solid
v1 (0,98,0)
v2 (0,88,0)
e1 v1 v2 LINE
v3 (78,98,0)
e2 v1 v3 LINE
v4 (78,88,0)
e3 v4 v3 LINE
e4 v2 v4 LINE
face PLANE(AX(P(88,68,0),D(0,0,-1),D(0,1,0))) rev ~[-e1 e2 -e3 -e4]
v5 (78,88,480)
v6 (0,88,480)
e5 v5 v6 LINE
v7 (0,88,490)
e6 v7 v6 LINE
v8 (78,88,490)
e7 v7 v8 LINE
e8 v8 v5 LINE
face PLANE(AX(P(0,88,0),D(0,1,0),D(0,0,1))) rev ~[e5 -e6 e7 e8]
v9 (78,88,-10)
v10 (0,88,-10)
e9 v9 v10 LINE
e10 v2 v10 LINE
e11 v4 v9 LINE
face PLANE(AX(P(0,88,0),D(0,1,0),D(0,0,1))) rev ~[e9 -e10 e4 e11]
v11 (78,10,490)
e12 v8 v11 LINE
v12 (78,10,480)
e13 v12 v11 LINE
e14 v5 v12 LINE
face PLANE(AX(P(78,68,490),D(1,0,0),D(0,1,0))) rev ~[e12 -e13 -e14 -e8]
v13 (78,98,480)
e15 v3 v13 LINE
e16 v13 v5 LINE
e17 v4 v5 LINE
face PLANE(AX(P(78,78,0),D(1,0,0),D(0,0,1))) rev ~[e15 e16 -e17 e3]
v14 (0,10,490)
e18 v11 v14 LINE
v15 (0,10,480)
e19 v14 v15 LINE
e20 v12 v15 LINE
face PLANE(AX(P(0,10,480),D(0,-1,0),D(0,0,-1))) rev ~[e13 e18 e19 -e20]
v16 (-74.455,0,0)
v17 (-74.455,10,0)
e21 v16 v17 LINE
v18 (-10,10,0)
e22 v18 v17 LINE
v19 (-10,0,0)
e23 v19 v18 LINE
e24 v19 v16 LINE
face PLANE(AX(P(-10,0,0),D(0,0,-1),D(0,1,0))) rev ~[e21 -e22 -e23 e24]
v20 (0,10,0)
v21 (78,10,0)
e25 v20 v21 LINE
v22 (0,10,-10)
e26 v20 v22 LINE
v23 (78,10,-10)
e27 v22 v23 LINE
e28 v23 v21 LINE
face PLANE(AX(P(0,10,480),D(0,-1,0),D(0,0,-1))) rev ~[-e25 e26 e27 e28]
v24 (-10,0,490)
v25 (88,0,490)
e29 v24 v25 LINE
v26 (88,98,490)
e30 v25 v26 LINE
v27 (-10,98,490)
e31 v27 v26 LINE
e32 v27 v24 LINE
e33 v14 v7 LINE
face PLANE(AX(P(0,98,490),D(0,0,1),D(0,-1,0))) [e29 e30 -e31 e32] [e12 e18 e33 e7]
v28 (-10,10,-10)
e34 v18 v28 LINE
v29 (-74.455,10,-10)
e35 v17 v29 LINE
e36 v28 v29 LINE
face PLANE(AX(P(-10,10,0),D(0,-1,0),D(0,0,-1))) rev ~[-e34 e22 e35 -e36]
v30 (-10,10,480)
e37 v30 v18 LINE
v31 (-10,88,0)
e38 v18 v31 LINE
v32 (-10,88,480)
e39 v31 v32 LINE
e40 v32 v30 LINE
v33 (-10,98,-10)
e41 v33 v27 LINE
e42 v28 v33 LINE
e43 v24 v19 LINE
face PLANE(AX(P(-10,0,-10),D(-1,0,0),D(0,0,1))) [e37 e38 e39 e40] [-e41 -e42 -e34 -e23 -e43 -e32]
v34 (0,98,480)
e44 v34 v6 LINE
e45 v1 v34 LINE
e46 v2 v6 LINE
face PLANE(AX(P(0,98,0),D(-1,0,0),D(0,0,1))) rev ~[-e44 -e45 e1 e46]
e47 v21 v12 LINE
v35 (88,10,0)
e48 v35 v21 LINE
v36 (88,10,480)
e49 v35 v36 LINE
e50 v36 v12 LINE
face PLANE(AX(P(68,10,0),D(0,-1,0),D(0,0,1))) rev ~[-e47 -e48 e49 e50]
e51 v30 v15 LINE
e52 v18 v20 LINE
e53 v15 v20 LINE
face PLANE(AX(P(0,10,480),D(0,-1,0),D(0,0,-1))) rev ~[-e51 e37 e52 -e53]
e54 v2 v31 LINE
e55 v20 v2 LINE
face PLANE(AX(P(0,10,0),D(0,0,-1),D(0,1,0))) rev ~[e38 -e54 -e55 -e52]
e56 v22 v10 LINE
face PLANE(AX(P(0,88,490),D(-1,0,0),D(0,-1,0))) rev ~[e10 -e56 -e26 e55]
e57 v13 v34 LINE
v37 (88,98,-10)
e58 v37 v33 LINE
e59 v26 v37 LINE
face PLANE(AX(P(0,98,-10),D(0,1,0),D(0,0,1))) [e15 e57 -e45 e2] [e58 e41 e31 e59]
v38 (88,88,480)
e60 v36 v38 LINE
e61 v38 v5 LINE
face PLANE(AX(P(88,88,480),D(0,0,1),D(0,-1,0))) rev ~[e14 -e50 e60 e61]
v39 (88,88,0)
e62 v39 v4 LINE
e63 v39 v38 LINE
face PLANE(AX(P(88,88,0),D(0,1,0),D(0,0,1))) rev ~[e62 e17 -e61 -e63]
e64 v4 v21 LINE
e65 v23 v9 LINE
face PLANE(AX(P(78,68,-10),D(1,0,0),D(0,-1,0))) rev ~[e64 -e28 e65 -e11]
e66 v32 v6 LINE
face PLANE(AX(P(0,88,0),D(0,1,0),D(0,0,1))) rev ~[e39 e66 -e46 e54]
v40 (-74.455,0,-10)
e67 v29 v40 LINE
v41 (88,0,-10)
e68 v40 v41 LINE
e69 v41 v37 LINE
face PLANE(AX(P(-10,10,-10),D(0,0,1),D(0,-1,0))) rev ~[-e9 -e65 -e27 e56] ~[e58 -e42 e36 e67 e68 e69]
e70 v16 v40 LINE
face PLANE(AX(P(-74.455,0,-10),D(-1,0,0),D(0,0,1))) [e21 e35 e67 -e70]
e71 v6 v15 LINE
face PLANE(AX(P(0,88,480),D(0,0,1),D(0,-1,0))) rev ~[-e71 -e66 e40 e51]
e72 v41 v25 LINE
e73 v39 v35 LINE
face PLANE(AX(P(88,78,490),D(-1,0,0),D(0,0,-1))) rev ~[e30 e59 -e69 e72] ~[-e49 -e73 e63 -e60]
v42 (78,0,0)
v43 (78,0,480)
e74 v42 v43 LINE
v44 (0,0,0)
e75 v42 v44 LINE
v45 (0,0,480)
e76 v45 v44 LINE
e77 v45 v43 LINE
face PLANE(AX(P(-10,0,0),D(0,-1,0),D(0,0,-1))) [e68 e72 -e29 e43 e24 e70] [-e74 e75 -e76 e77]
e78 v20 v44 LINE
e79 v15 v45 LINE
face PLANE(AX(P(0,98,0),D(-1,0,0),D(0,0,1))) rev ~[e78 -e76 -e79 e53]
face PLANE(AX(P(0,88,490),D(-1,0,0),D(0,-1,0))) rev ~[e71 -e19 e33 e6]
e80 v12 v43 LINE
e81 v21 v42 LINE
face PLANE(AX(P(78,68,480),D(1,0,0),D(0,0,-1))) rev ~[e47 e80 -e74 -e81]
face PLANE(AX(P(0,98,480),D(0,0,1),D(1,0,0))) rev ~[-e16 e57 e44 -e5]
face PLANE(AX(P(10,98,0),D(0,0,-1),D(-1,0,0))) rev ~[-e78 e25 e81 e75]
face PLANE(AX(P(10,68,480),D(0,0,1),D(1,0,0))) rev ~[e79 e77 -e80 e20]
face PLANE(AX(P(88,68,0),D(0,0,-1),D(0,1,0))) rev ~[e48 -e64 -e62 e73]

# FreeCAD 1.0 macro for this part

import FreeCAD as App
import Part
import Sketcher
Q = App.Units.Quantity

doc = App.newDocument("Part")
body = doc.addObject("PartDesign::Body", "Body")

sketch1 = body.newObject("Sketcher::SketchObject", "Sketch")
sketch1.AttachmentSupport = (doc.getObject("XY_Plane"), [""])
sketch1.MapMode = "FlatFace"
sketch1.addGeometry([
    Part.LineSegment(App.Vector(0, 68, 0), App.Vector(0, 0, 0)),
    Part.LineSegment(App.Vector(0, 0, 0), App.Vector(68, 0, 0)),
    Part.LineSegment(App.Vector(68, 0, 0), App.Vector(68, 68, 0)),
    Part.LineSegment(App.Vector(68, 68, 0), App.Vector(0, 68, 0)),
], False)
sketch1.addConstraint([
    Sketcher.Constraint("Coincident", 0, 2, 1, 1),
    Sketcher.Constraint("Coincident", 1, 2, 2, 1),
    Sketcher.Constraint("Coincident", 2, 2, 3, 1),
    Sketcher.Constraint("Coincident", 3, 2, 0, 1),
    Sketcher.Constraint("Vertical", 0),
    Sketcher.Constraint("Horizontal", 1),
    Sketcher.Constraint("Vertical", 2),
    Sketcher.Constraint("Horizontal", 3),
    Sketcher.Constraint("Coincident", 0, 2, -1, 1),
    Sketcher.Constraint("Equal", 3, 0),
    Sketcher.Constraint("DistanceX", 1, 1, 1, 2, Q("68 mm")),
])
pad1 = body.newObject("PartDesign::Pad", "Pad")
pad1.Profile = sketch1
pad1.Length = 480

sketch2 = body.newObject("Sketcher::SketchObject", "Sketch001")
sketch2.AttachmentSupport = (doc.getObject("XY_Plane"), [""])
sketch2.MapMode = "FlatFace"
sketch2.AttachmentOffset = App.Placement(App.Vector(0, 0, 480), App.Rotation())
sketch2.addGeometry([
    Part.LineSegment(App.Vector(58, 58, 0), App.Vector(10, 58, 0)),
    Part.LineSegment(App.Vector(10, 58, 0), App.Vector(10, 10, 0)),
    Part.LineSegment(App.Vector(10, 10, 0), App.Vector(58, 10, 0)),
    Part.LineSegment(App.Vector(58, 10, 0), App.Vector(58, 58, 0)),
], False)
sketch2.addConstraint([
    Sketcher.Constraint("Coincident", 0, 2, 1, 1),
    Sketcher.Constraint("Coincident", 1, 2, 2, 1),
    Sketcher.Constraint("Coincident", 2, 2, 3, 1),
    Sketcher.Constraint("Coincident", 3, 2, 0, 1),
    Sketcher.Constraint("Horizontal", 0),
    Sketcher.Constraint("Vertical", 1),
    Sketcher.Constraint("Horizontal", 2),
    Sketcher.Constraint("Vertical", 3),
    Sketcher.Constraint("Equal", 2, 1),
    Sketcher.Constraint("DistanceX", -1, 1, 0, 2, Q("10 mm")),
    Sketcher.Constraint("DistanceY", -1, 1, 1, 2, Q("10 mm")),
    Sketcher.Constraint("DistanceX", 0, 2, 0, 1, Q("48 mm")),
])
pocket1 = body.newObject("PartDesign::Pocket", "Pocket")
pocket1.Profile = sketch2
pocket1.Length = 900

sketch3 = body.newObject("Sketcher::SketchObject", "Sketch002")
sketch3.AttachmentSupport = (doc.getObject("YZ_Plane"), [""])
sketch3.MapMode = "FlatFace"
sketch3.AttachmentOffset = App.Placement(App.Vector(0, 0, 68), App.Rotation())
sketch3.addGeometry([
    Part.LineSegment(App.Vector(58, 10, 0), App.Vector(58, 470, 0)),
    Part.LineSegment(App.Vector(58, 470, 0), App.Vector(10, 470, 0)),
    Part.LineSegment(App.Vector(10, 470, 0), App.Vector(10, 10, 0)),
    Part.LineSegment(App.Vector(10, 10, 0), App.Vector(58, 10, 0)),
], False)
sketch3.addConstraint([
    Sketcher.Constraint("Coincident", 0, 2, 1, 1),
    Sketcher.Constraint("Coincident", 1, 2, 2, 1),
    Sketcher.Constraint("Coincident", 2, 2, 3, 1),
    Sketcher.Constraint("Coincident", 3, 2, 0, 1),
    Sketcher.Constraint("Vertical", 0),
    Sketcher.Constraint("Horizontal", 1),
    Sketcher.Constraint("Vertical", 2),
    Sketcher.Constraint("Horizontal", 3),
    Sketcher.Constraint("DistanceX", -1, 1, 1, 2, Q("10 mm")),
    Sketcher.Constraint("DistanceY", -1, 1, 2, 2, Q("10 mm")),
    Sketcher.Constraint("DistanceX", 1, 2, 1, 1, Q("48 mm")),
    Sketcher.Constraint("DistanceY", 0, 1, 0, 2, Q("460 mm")),
])
pocket2 = body.newObject("PartDesign::Pocket", "Pocket001")
pocket2.Profile = sketch3
pocket2.Length = 900

sketch4 = body.newObject("Sketcher::SketchObject", "Sketch003")
sketch4.AttachmentSupport = (doc.getObject("XZ_Plane"), [""])
sketch4.MapMode = "FlatFace"
sketch4.AttachmentOffset = App.Placement(App.Vector(0, 0, -68), App.Rotation())
sketch4.addGeometry([
    Part.LineSegment(App.Vector(58, 470, 0), App.Vector(58, 10, 0)),
    Part.LineSegment(App.Vector(58, 10, 0), App.Vector(10, 10, 0)),
    Part.LineSegment(App.Vector(10, 10, 0), App.Vector(10, 470, 0)),
    Part.LineSegment(App.Vector(10, 470, 0), App.Vector(58, 470, 0)),
], False)
sketch4.addConstraint([
    Sketcher.Constraint("Coincident", 0, 2, 1, 1),
    Sketcher.Constraint("Coincident", 1, 2, 2, 1),
    Sketcher.Constraint("Coincident", 2, 2, 3, 1),
    Sketcher.Constraint("Coincident", 3, 2, 0, 1),
    Sketcher.Constraint("Vertical", 0),
    Sketcher.Constraint("Horizontal", 1),
    Sketcher.Constraint("Vertical", 2),
    Sketcher.Constraint("Horizontal", 3),
    Sketcher.Constraint("DistanceX", 1, 2, 1, 1, Q("48 mm")),
    Sketcher.Constraint("DistanceY", 0, 2, 0, 1, Q("460 mm")),
    Sketcher.Constraint("DistanceX", -1, 1, 0, 2, Q("58 mm")),
    Sketcher.Constraint("DistanceY", -1, 1, 0, 2, Q("10 mm")),
])
pocket3 = body.newObject("PartDesign::Pocket", "Pocket002")
pocket3.Profile = sketch4
pocket3.Length = 900
pocket3.Reversed = True

sketch5 = body.newObject("Sketcher::SketchObject", "Sketch004")
sketch5.AttachmentSupport = (doc.getObject("XY_Plane"), [""])
sketch5.MapMode = "FlatFace"
sketch5.AttachmentOffset = App.Placement(App.Vector(0, 0, 480), App.Rotation())
sketch5.addGeometry([
    Part.LineSegment(App.Vector(68, 0, 0), App.Vector(68, 68, 0)),
    Part.LineSegment(App.Vector(68, 68, 0), App.Vector(0, 68, 0)),
    Part.LineSegment(App.Vector(0, 68, 0), App.Vector(0, 58, 0)),
    Part.LineSegment(App.Vector(0, 58, 0), App.Vector(0, 0, 0)),
    Part.LineSegment(App.Vector(0, 0, 0), App.Vector(68, 0, 0)),
    Part.LineSegment(App.Vector(10, 10, 0), App.Vector(10, 58, 0)),
    Part.LineSegment(App.Vector(10, 58, 0), App.Vector(58, 58, 0)),
    Part.LineSegment(App.Vector(58, 58, 0), App.Vector(58, 10, 0)),
    Part.LineSegment(App.Vector(58, 10, 0), App.Vector(10, 10, 0)),
], False)
sketch5.addConstraint([
    Sketcher.Constraint("Coincident", 0, 2, 1, 1),
    Sketcher.Constraint("Coincident", 1, 2, 2, 1),
    Sketcher.Constraint("Coincident", 2, 2, 3, 1),
    Sketcher.Constraint("Coincident", 3, 2, 4, 1),
    Sketcher.Constraint("Coincident", 4, 2, 0, 1),
    Sketcher.Constraint("Coincident", 5, 2, 6, 1),
    Sketcher.Constraint("Coincident", 6, 2, 7, 1),
    Sketcher.Constraint("Coincident", 7, 2, 8, 1),
    Sketcher.Constraint("Coincident", 8, 2, 5, 1),
    Sketcher.Constraint("Vertical", 0),
    Sketcher.Constraint("Horizontal", 1),
    Sketcher.Constraint("Vertical", 2),
    Sketcher.Constraint("Vertical", 3),
    Sketcher.Constraint("Horizontal", 4),
    Sketcher.Constraint("Vertical", 5),
    Sketcher.Constraint("Horizontal", 6),
    Sketcher.Constraint("Vertical", 7),
    Sketcher.Constraint("Horizontal", 8),
    Sketcher.Constraint("Coincident", 3, 2, -1, 1),
    Sketcher.Constraint("Horizontal", 2, 2, 5, 2),
    Sketcher.Constraint("Equal", 4, 0),
    Sketcher.Constraint("Equal", 8, 5),
    Sketcher.Constraint("DistanceX", 1, 2, 1, 1, Q("68 mm")),
    Sketcher.Constraint("DistanceX", 6, 1, 6, 2, Q("48 mm")),
    Sketcher.Constraint("DistanceY", 2, 2, 2, 1, Q("10 mm")),
    Sketcher.Constraint("DistanceX", -1, 1, 5, 2, Q("10 mm")),
])
pad2 = body.newObject("PartDesign::Pad", "Pad001")
pad2.Profile = sketch5
pad2.Length = 10

sketch6 = body.newObject("Sketcher::SketchObject", "Sketch005")
sketch6.AttachmentSupport = (doc.getObject("XZ_Plane"), [""])
sketch6.MapMode = "FlatFace"
sketch6.AttachmentOffset = App.Placement(App.Vector(0, 0, -68), App.Rotation())
sketch6.addGeometry([
    Part.LineSegment(App.Vector(10, 480, 0), App.Vector(58, 480, 0)),
    Part.LineSegment(App.Vector(58, 480, 0), App.Vector(58, 470, 0)),
    Part.LineSegment(App.Vector(58, 470, 0), App.Vector(10, 470, 0)),
    Part.LineSegment(App.Vector(10, 470, 0), App.Vector(10, 480, 0)),
], False)
sketch6.addConstraint([
    Sketcher.Constraint("Coincident", 0, 2, 1, 1),
    Sketcher.Constraint("Coincident", 1, 2, 2, 1),
    Sketcher.Constraint("Coincident", 2, 2, 3, 1),
    Sketcher.Constraint("Coincident", 3, 2, 0, 1),
    Sketcher.Constraint("Horizontal", 0),
    Sketcher.Constraint("Vertical", 1),
    Sketcher.Constraint("Horizontal", 2),
    Sketcher.Constraint("Vertical", 3),
    Sketcher.Constraint("DistanceX", 0, 1, 0, 2, Q("48 mm")),
    Sketcher.Constraint("DistanceY", 1, 2, 1, 1, Q("10 mm")),
    Sketcher.Constraint("DistanceX", -1, 1, 0, 2, Q("58 mm")),
    Sketcher.Constraint("DistanceY", -1, 1, 0, 2, Q("480 mm")),
])
pocket4 = body.newObject("PartDesign::Pocket", "Pocket003")
pocket4.Profile = sketch6
pocket4.Length = 900
pocket4.Reversed = True

sketch7 = body.newObject("Sketcher::SketchObject", "Sketch006")
sketch7.AttachmentSupport = (doc.getObject("YZ_Plane"), [""])
sketch7.MapMode = "FlatFace"
sketch7.AttachmentOffset = App.Placement(App.Vector(0, 0, 68), App.Rotation())
sketch7.addGeometry([
    Part.LineSegment(App.Vector(10, 480, 0), App.Vector(10, 470, 0)),
    Part.LineSegment(App.Vector(10, 470, 0), App.Vector(58, 470, 0)),
    Part.LineSegment(App.Vector(58, 470, 0), App.Vector(58, 480, 0)),
    Part.LineSegment(App.Vector(58, 480, 0), App.Vector(10, 480, 0)),
], False)
sketch7.addConstraint([
    Sketcher.Constraint("Coincident", 0, 2, 1, 1),
    Sketcher.Constraint("Coincident", 1, 2, 2, 1),
    Sketcher.Constraint("Coincident", 2, 2, 3, 1),
    Sketcher.Constraint("Coincident", 3, 2, 0, 1),
    Sketcher.Constraint("Vertical", 0),
    Sketcher.Constraint("Horizontal", 1),
    Sketcher.Constraint("Vertical", 2),
    Sketcher.Constraint("Horizontal", 3),
    Sketcher.Constraint("DistanceX", 1, 1, 1, 2, Q("48 mm")),
    Sketcher.Constraint("DistanceY", 0, 2, 0, 1, Q("10 mm")),
    Sketcher.Constraint("DistanceX", -1, 1, 0, 2, Q("10 mm")),
    Sketcher.Constraint("DistanceY", -1, 1, 0, 2, Q("470 mm")),
])
pocket5 = body.newObject("PartDesign::Pocket", "Pocket004")
pocket5.Profile = sketch7
pocket5.Length = 900

sketch8 = body.newObject("Sketcher::SketchObject", "Sketch007")
sketch8.AttachmentSupport = (doc.getObject("XY_Plane"), [""])
sketch8.MapMode = "FlatFace"
sketch8.addGeometry([
    Part.LineSegment(App.Vector(68, 68, 0), App.Vector(68, 0, 0)),
    Part.LineSegment(App.Vector(68, 0, 0), App.Vector(0, 0, 0)),
    Part.LineSegment(App.Vector(0, 0, 0), App.Vector(0, 68, 0)),
    Part.LineSegment(App.Vector(0, 68, 0), App.Vector(68, 68, 0)),
    Part.LineSegment(App.Vector(58, 10, 0), App.Vector(58, 58, 0)),
    Part.LineSegment(App.Vector(58, 58, 0), App.Vector(10, 58, 0)),
    Part.LineSegment(App.Vector(10, 58, 0), App.Vector(10, 10, 0)),
    Part.LineSegment(App.Vector(10, 10, 0), App.Vector(58, 10, 0)),
], False)
sketch8.addConstraint([
    Sketcher.Constraint("Coincident", 0, 2, 1, 1),
    Sketcher.Constraint("Coincident", 1, 2, 2, 1),
    Sketcher.Constraint("Coincident", 2, 2, 3, 1),
    Sketcher.Constraint("Coincident", 3, 2, 0, 1),
    Sketcher.Constraint("Coincident", 4, 2, 5, 1),
    Sketcher.Constraint("Coincident", 5, 2, 6, 1),
    Sketcher.Constraint("Coincident", 6, 2, 7, 1),
    Sketcher.Constraint("Coincident", 7, 2, 4, 1),
    Sketcher.Constraint("Vertical", 0),
    Sketcher.Constraint("Horizontal", 1),
    Sketcher.Constraint("Vertical", 2),
    Sketcher.Constraint("Horizontal", 3),
    Sketcher.Constraint("Vertical", 4),
    Sketcher.Constraint("Horizontal", 5),
    Sketcher.Constraint("Vertical", 6),
    Sketcher.Constraint("Horizontal", 7),
    Sketcher.Constraint("Coincident", 1, 2, -1, 1),
    Sketcher.Constraint("Equal", 3, 0),
    Sketcher.Constraint("Equal", 7, 4),
    Sketcher.Constraint("DistanceX", 1, 2, 1, 1, Q("68 mm")),
    Sketcher.Constraint("DistanceX", 5, 2, 5, 1, Q("48 mm")),
    Sketcher.Constraint("DistanceX", -1, 1, 4, 2, Q("58 mm")),
    Sketcher.Constraint("DistanceY", -1, 1, 4, 2, Q("58 mm")),
])
pad3 = body.newObject("PartDesign::Pad", "Pad002")
pad3.Profile = sketch8
pad3.Length = 10
pad3.Reversed = True

sketch9 = body.newObject("Sketcher::SketchObject", "Sketch008")
sketch9.AttachmentSupport = (doc.getObject("XZ_Plane"), [""])
sketch9.MapMode = "FlatFace"
sketch9.AttachmentOffset = App.Placement(App.Vector(0, 0, -68), App.Rotation())
sketch9.addGeometry([
    Part.LineSegment(App.Vector(10, 0, 0), App.Vector(10, 10, 0)),
    Part.LineSegment(App.Vector(10, 10, 0), App.Vector(58, 10, 0)),
    Part.LineSegment(App.Vector(58, 10, 0), App.Vector(58, 0, 0)),
    Part.LineSegment(App.Vector(58, 0, 0), App.Vector(10, 0, 0)),
], False)
sketch9.addConstraint([
    Sketcher.Constraint("Coincident", 0, 2, 1, 1),
    Sketcher.Constraint("Coincident", 1, 2, 2, 1),
    Sketcher.Constraint("Coincident", 2, 2, 3, 1),
    Sketcher.Constraint("Coincident", 3, 2, 0, 1),
    Sketcher.Constraint("Vertical", 0),
    Sketcher.Constraint("Horizontal", 1),
    Sketcher.Constraint("Vertical", 2),
    Sketcher.Constraint("Horizontal", 3),
    Sketcher.Constraint("PointOnObject", 2, 2, -1),
    Sketcher.Constraint("DistanceX", 1, 1, 1, 2, Q("48 mm")),
    Sketcher.Constraint("DistanceY", 0, 1, 0, 2, Q("10 mm")),
    Sketcher.Constraint("DistanceX", -1, 1, 0, 2, Q("10 mm")),
])
pocket6 = body.newObject("PartDesign::Pocket", "Pocket005")
pocket6.Profile = sketch9
pocket6.Length = 900
pocket6.Reversed = True

sketch10 = body.newObject("Sketcher::SketchObject", "Sketch009")
sketch10.AttachmentSupport = (doc.getObject("YZ_Plane"), [""])
sketch10.MapMode = "FlatFace"
sketch10.AttachmentOffset = App.Placement(App.Vector(0, 0, 68), App.Rotation())
sketch10.addGeometry([
    Part.LineSegment(App.Vector(58, 0, 0), App.Vector(58, 10, 0)),
    Part.LineSegment(App.Vector(58, 10, 0), App.Vector(10, 10, 0)),
    Part.LineSegment(App.Vector(10, 10, 0), App.Vector(10, 0, 0)),
    Part.LineSegment(App.Vector(10, 0, 0), App.Vector(58, 0, 0)),
], False)
sketch10.addConstraint([
    Sketcher.Constraint("Coincident", 0, 2, 1, 1),
    Sketcher.Constraint("Coincident", 1, 2, 2, 1),
    Sketcher.Constraint("Coincident", 2, 2, 3, 1),
    Sketcher.Constraint("Coincident", 3, 2, 0, 1),
    Sketcher.Constraint("Vertical", 0),
    Sketcher.Constraint("Horizontal", 1),
    Sketcher.Constraint("Vertical", 2),
    Sketcher.Constraint("Horizontal", 3),
    Sketcher.Constraint("PointOnObject", 2, 2, -1),
    Sketcher.Constraint("DistanceX", 1, 2, 1, 1, Q("48 mm")),
    Sketcher.Constraint("DistanceY", 0, 1, 0, 2, Q("10 mm")),
    Sketcher.Constraint("DistanceX", -1, 1, 0, 2, Q("58 mm")),
])
pocket7 = body.newObject("PartDesign::Pocket", "Pocket006")
pocket7.Profile = sketch10
pocket7.Length = 900

sketch11 = body.newObject("Sketcher::SketchObject", "Sketch010")
sketch11.AttachmentSupport = (doc.getObject("YZ_Plane"), [""])
sketch11.MapMode = "FlatFace"
sketch11.AttachmentOffset = App.Placement(App.Vector(0, 0, 68), App.Rotation())
sketch11.addGeometry([
    Part.LineSegment(App.Vector(68, -10, 0), App.Vector(68, 490, 0)),
    Part.LineSegment(App.Vector(68, 490, 0), App.Vector(0, 490, 0)),
    Part.LineSegment(App.Vector(0, 490, 0), App.Vector(0, -10, 0)),
    Part.LineSegment(App.Vector(0, -10, 0), App.Vector(68, -10, 0)),
    Part.LineSegment(App.Vector(58, 480, 0), App.Vector(58, 0, 0)),
    Part.LineSegment(App.Vector(58, 0, 0), App.Vector(10, 0, 0)),
    Part.LineSegment(App.Vector(10, 0, 0), App.Vector(10, 480, 0)),
    Part.LineSegment(App.Vector(10, 480, 0), App.Vector(58, 480, 0)),
], False)
sketch11.addConstraint([
    Sketcher.Constraint("Coincident", 0, 2, 1, 1),
    Sketcher.Constraint("Coincident", 1, 2, 2, 1),
    Sketcher.Constraint("Coincident", 2, 2, 3, 1),
    Sketcher.Constraint("Coincident", 3, 2, 0, 1),
    Sketcher.Constraint("Coincident", 4, 2, 5, 1),
    Sketcher.Constraint("Coincident", 5, 2, 6, 1),
    Sketcher.Constraint("Coincident", 6, 2, 7, 1),
    Sketcher.Constraint("Coincident", 7, 2, 4, 1),
    Sketcher.Constraint("Vertical", 0),
    Sketcher.Constraint("Horizontal", 1),
    Sketcher.Constraint("Vertical", 2),
    Sketcher.Constraint("Horizontal", 3),
    Sketcher.Constraint("Vertical", 4),
    Sketcher.Constraint("Horizontal", 5),
    Sketcher.Constraint("Vertical", 6),
    Sketcher.Constraint("Horizontal", 7),
    Sketcher.Constraint("PointOnObject", 1, 2, -2),
    Sketcher.Constraint("PointOnObject", 4, 2, -1),
    Sketcher.Constraint("DistanceX", 1, 2, 1, 1, Q("68 mm")),
    Sketcher.Constraint("DistanceX", 5, 2, 5, 1, Q("48 mm")),
    Sketcher.Constraint("DistanceY", 0, 1, 0, 2, Q("500 mm")),
    Sketcher.Constraint("DistanceY", 4, 2, 4, 1, Q("480 mm")),
    Sketcher.Constraint("DistanceY", -1, 1, 0, 2, Q("490 mm")),
    Sketcher.Constraint("DistanceX", -1, 1, 4, 2, Q("58 mm")),
])
pad4 = body.newObject("PartDesign::Pad", "Pad003")
pad4.Profile = sketch11
pad4.Length = 20

sketch12 = body.newObject("Sketcher::SketchObject", "Sketch011")
sketch12.AttachmentSupport = (doc.getObject("XZ_Plane"), [""])
sketch12.MapMode = "FlatFace"
sketch12.AttachmentOffset = App.Placement(App.Vector(0, 0, -68), App.Rotation())
sketch12.addGeometry([
    Part.LineSegment(App.Vector(58, 0, 0), App.Vector(58, 480, 0)),
    Part.LineSegment(App.Vector(58, 480, 0), App.Vector(78, 480, 0)),
    Part.LineSegment(App.Vector(78, 480, 0), App.Vector(78, 0, 0)),
    Part.LineSegment(App.Vector(78, 0, 0), App.Vector(58, 0, 0)),
], False)
sketch12.addConstraint([
    Sketcher.Constraint("Coincident", 0, 2, 1, 1),
    Sketcher.Constraint("Coincident", 1, 2, 2, 1),
    Sketcher.Constraint("Coincident", 2, 2, 3, 1),
    Sketcher.Constraint("Coincident", 3, 2, 0, 1),
    Sketcher.Constraint("Vertical", 0),
    Sketcher.Constraint("Horizontal", 1),
    Sketcher.Constraint("Vertical", 2),
    Sketcher.Constraint("Horizontal", 3),
    Sketcher.Constraint("PointOnObject", 2, 2, -1),
    Sketcher.Constraint("DistanceX", 1, 1, 1, 2, Q("20 mm")),
    Sketcher.Constraint("DistanceY", 0, 1, 0, 2, Q("480 mm")),
    Sketcher.Constraint("DistanceX", -1, 1, 0, 2, Q("58 mm")),
])
pocket8 = body.newObject("PartDesign::Pocket", "Pocket007")
pocket8.Profile = sketch12
pocket8.Length = 900
pocket8.Reversed = True

sketch13 = body.newObject("Sketcher::SketchObject", "Sketch012")
sketch13.AttachmentSupport = (doc.getObject("XY_Plane"), [""])
sketch13.MapMode = "FlatFace"
sketch13.AttachmentOffset = App.Placement(App.Vector(0, 0, -10), App.Rotation())
sketch13.addGeometry([
    Part.LineSegment(App.Vector(58, 10, 0), App.Vector(58, 58, 0)),
    Part.LineSegment(App.Vector(58, 58, 0), App.Vector(78, 58, 0)),
    Part.LineSegment(App.Vector(78, 58, 0), App.Vector(78, 10, 0)),
    Part.LineSegment(App.Vector(78, 10, 0), App.Vector(58, 10, 0)),
], False)
sketch13.addConstraint([
    Sketcher.Constraint("Coincident", 0, 2, 1, 1),
    Sketcher.Constraint("Coincident", 1, 2, 2, 1),
    Sketcher.Constraint("Coincident", 2, 2, 3, 1),
    Sketcher.Constraint("Coincident", 3, 2, 0, 1),
    Sketcher.Constraint("Vertical", 0),
    Sketcher.Constraint("Horizontal", 1),
    Sketcher.Constraint("Vertical", 2),
    Sketcher.Constraint("Horizontal", 3),
    Sketcher.Constraint("DistanceX", 1, 1, 1, 2, Q("20 mm")),
    Sketcher.Constraint("DistanceY", 0, 1, 0, 2, Q("48 mm")),
    Sketcher.Constraint("DistanceX", -1, 1, 0, 2, Q("58 mm")),
    Sketcher.Constraint("DistanceY", -1, 1, 0, 2, Q("58 mm")),
])
pocket9 = body.newObject("PartDesign::Pocket", "Pocket008")
pocket9.Profile = sketch13
pocket9.Length = 900
pocket9.Reversed = True

sketch14 = body.newObject("Sketcher::SketchObject", "Sketch013")
sketch14.AttachmentSupport = (doc.getObject("XZ_Plane"), [""])
sketch14.MapMode = "FlatFace"
sketch14.AttachmentOffset = App.Placement(App.Vector(0, 0, -68), App.Rotation())
sketch14.addGeometry([
    Part.LineSegment(App.Vector(0, -10, 0), App.Vector(0, 490, 0)),
    Part.LineSegment(App.Vector(0, 490, 0), App.Vector(88, 490, 0)),
    Part.LineSegment(App.Vector(88, 490, 0), App.Vector(88, -10, 0)),
    Part.LineSegment(App.Vector(88, -10, 0), App.Vector(0, -10, 0)),
    Part.LineSegment(App.Vector(78, 480, 0), App.Vector(10, 480, 0)),
    Part.LineSegment(App.Vector(10, 480, 0), App.Vector(10, 0, 0)),
    Part.LineSegment(App.Vector(10, 0, 0), App.Vector(78, 0, 0)),
    Part.LineSegment(App.Vector(78, 0, 0), App.Vector(78, 480, 0)),
], False)
sketch14.addConstraint([
    Sketcher.Constraint("Coincident", 0, 2, 1, 1),
    Sketcher.Constraint("Coincident", 1, 2, 2, 1),
    Sketcher.Constraint("Coincident", 2, 2, 3, 1),
    Sketcher.Constraint("Coincident", 3, 2, 0, 1),
    Sketcher.Constraint("Coincident", 4, 2, 5, 1),
    Sketcher.Constraint("Coincident", 5, 2, 6, 1),
    Sketcher.Constraint("Coincident", 6, 2, 7, 1),
    Sketcher.Constraint("Coincident", 7, 2, 4, 1),
    Sketcher.Constraint("Vertical", 0),
    Sketcher.Constraint("Horizontal", 1),
    Sketcher.Constraint("Vertical", 2),
    Sketcher.Constraint("Horizontal", 3),
    Sketcher.Constraint("Horizontal", 4),
    Sketcher.Constraint("Vertical", 5),
    Sketcher.Constraint("Horizontal", 6),
    Sketcher.Constraint("Vertical", 7),
    Sketcher.Constraint("PointOnObject", 0, 2, -2),
    Sketcher.Constraint("PointOnObject", 5, 2, -1),
    Sketcher.Constraint("DistanceX", 1, 1, 1, 2, Q("88 mm")),
    Sketcher.Constraint("DistanceX", 4, 2, 4, 1, Q("68 mm")),
    Sketcher.Constraint("DistanceY", 0, 1, 0, 2, Q("500 mm")),
    Sketcher.Constraint("DistanceY", 5, 2, 5, 1, Q("480 mm")),
    Sketcher.Constraint("DistanceY", -1, 1, 0, 2, Q("490 mm")),
    Sketcher.Constraint("DistanceX", -1, 1, 4, 2, Q("10 mm")),
])
pad5 = body.newObject("PartDesign::Pad", "Pad004")
pad5.Profile = sketch14
pad5.Length = 10
pad5.Reversed = True

sketch15 = body.newObject("Sketcher::SketchObject", "Sketch014")
sketch15.AttachmentSupport = (doc.getObject("YZ_Plane"), [""])
sketch15.MapMode = "FlatFace"
sketch15.AttachmentOffset = App.Placement(App.Vector(0, 0, 88), App.Rotation())
sketch15.addGeometry([
    Part.LineSegment(App.Vector(68, 480, 0), App.Vector(58, 480, 0)),
    Part.LineSegment(App.Vector(58, 480, 0), App.Vector(58, 0, 0)),
    Part.LineSegment(App.Vector(58, 0, 0), App.Vector(68, 0, 0)),
    Part.LineSegment(App.Vector(68, 0, 0), App.Vector(68, 480, 0)),
], False)
sketch15.addConstraint([
    Sketcher.Constraint("Coincident", 0, 2, 1, 1),
    Sketcher.Constraint("Coincident", 1, 2, 2, 1),
    Sketcher.Constraint("Coincident", 2, 2, 3, 1),
    Sketcher.Constraint("Coincident", 3, 2, 0, 1),
    Sketcher.Constraint("Horizontal", 0),
    Sketcher.Constraint("Vertical", 1),
    Sketcher.Constraint("Horizontal", 2),
    Sketcher.Constraint("Vertical", 3),
    Sketcher.Constraint("PointOnObject", 1, 2, -1),
    Sketcher.Constraint("DistanceX", 0, 2, 0, 1, Q("10 mm")),
    Sketcher.Constraint("DistanceY", 1, 2, 1, 1, Q("480 mm")),
    Sketcher.Constraint("DistanceX", -1, 1, 0, 2, Q("58 mm")),
])
pocket10 = body.newObject("PartDesign::Pocket", "Pocket009")
pocket10.Profile = sketch15
pocket10.Length = 900

sketch16 = body.newObject("Sketcher::SketchObject", "Sketch015")
sketch16.AttachmentSupport = (doc.getObject("XY_Plane"), [""])
sketch16.MapMode = "FlatFace"
sketch16.AttachmentOffset = App.Placement(App.Vector(0, 0, -10), App.Rotation())
sketch16.addGeometry([
    Part.LineSegment(App.Vector(78, 68, 0), App.Vector(78, 58, 0)),
    Part.LineSegment(App.Vector(78, 58, 0), App.Vector(10, 58, 0)),
    Part.LineSegment(App.Vector(10, 58, 0), App.Vector(10, 68, 0)),
    Part.LineSegment(App.Vector(10, 68, 0), App.Vector(78, 68, 0)),
], False)
sketch16.addConstraint([
    Sketcher.Constraint("Coincident", 0, 2, 1, 1),
    Sketcher.Constraint("Coincident", 1, 2, 2, 1),
    Sketcher.Constraint("Coincident", 2, 2, 3, 1),
    Sketcher.Constraint("Coincident", 3, 2, 0, 1),
    Sketcher.Constraint("Vertical", 0),
    Sketcher.Constraint("Horizontal", 1),
    Sketcher.Constraint("Vertical", 2),
    Sketcher.Constraint("Horizontal", 3),
    Sketcher.Constraint("DistanceX", 1, 2, 1, 1, Q("68 mm")),
    Sketcher.Constraint("DistanceY", 0, 2, 0, 1, Q("10 mm")),
    Sketcher.Constraint("DistanceX", -1, 1, 0, 2, Q("78 mm")),
    Sketcher.Constraint("DistanceY", -1, 1, 0, 2, Q("58 mm")),
])
pocket11 = body.newObject("PartDesign::Pocket", "Pocket010")
pocket11.Profile = sketch16
pocket11.Length = 900
pocket11.Reversed = True

sketch17 = body.newObject("Sketcher::SketchObject", "Sketch016")
sketch17.AttachmentSupport = (doc.getObject("XZ_Plane"), [""])
sketch17.MapMode = "FlatFace"
sketch17.AttachmentOffset = App.Placement(App.Vector(0, 0, -78), App.Rotation())
sketch17.addGeometry([
    Part.LineSegment(App.Vector(0, 490, 0), App.Vector(88, 490, 0)),
    Part.LineSegment(App.Vector(88, 490, 0), App.Vector(88, -10, 0)),
    Part.LineSegment(App.Vector(88, -10, 0), App.Vector(0, -10, 0)),
    Part.LineSegment(App.Vector(0, -10, 0), App.Vector(0, 490, 0)),
    Part.LineSegment(App.Vector(10, 0, 0), App.Vector(78, 0, 0)),
    Part.LineSegment(App.Vector(78, 0, 0), App.Vector(78, 480, 0)),
    Part.LineSegment(App.Vector(78, 480, 0), App.Vector(10, 480, 0)),
    Part.LineSegment(App.Vector(10, 480, 0), App.Vector(10, 0, 0)),
], False)
sketch17.addConstraint([
    Sketcher.Constraint("Coincident", 0, 2, 1, 1),
    Sketcher.Constraint("Coincident", 1, 2, 2, 1),
    Sketcher.Constraint("Coincident", 2, 2, 3, 1),
    Sketcher.Constraint("Coincident", 3, 2, 0, 1),
    Sketcher.Constraint("Coincident", 4, 2, 5, 1),
    Sketcher.Constraint("Coincident", 5, 2, 6, 1),
    Sketcher.Constraint("Coincident", 6, 2, 7, 1),
    Sketcher.Constraint("Coincident", 7, 2, 4, 1),
    Sketcher.Constraint("Horizontal", 0),
    Sketcher.Constraint("Vertical", 1),
    Sketcher.Constraint("Horizontal", 2),
    Sketcher.Constraint("Vertical", 3),
    Sketcher.Constraint("Horizontal", 4),
    Sketcher.Constraint("Vertical", 5),
    Sketcher.Constraint("Horizontal", 6),
    Sketcher.Constraint("Vertical", 7),
    Sketcher.Constraint("PointOnObject", 2, 2, -2),
    Sketcher.Constraint("PointOnObject", 4, 2, -1),
    Sketcher.Constraint("DistanceX", 0, 1, 0, 2, Q("88 mm")),
    Sketcher.Constraint("DistanceX", 4, 1, 4, 2, Q("68 mm")),
    Sketcher.Constraint("DistanceY", 1, 2, 1, 1, Q("500 mm")),
    Sketcher.Constraint("DistanceY", 5, 1, 5, 2, Q("480 mm")),
    Sketcher.Constraint("DistanceY", -1, 1, 0, 2, Q("490 mm")),
    Sketcher.Constraint("DistanceX", -1, 1, 4, 2, Q("78 mm")),
])
pad6 = body.newObject("PartDesign::Pad", "Pad005")
pad6.Profile = sketch17
pad6.Length = 20
pad6.Reversed = True

sketch18 = body.newObject("Sketcher::SketchObject", "Sketch017")
sketch18.AttachmentSupport = (doc.getObject("YZ_Plane"), [""])
sketch18.MapMode = "FlatFace"
sketch18.AttachmentOffset = App.Placement(App.Vector(0, 0, 88), App.Rotation())
sketch18.addGeometry([
    Part.LineSegment(App.Vector(68, 480, 0), App.Vector(68, 0, 0)),
    Part.LineSegment(App.Vector(68, 0, 0), App.Vector(88, 0, 0)),
    Part.LineSegment(App.Vector(88, 0, 0), App.Vector(88, 480, 0)),
    Part.LineSegment(App.Vector(88, 480, 0), App.Vector(68, 480, 0)),
], False)
sketch18.addConstraint([
    Sketcher.Constraint("Coincident", 0, 2, 1, 1),
    Sketcher.Constraint("Coincident", 1, 2, 2, 1),
    Sketcher.Constraint("Coincident", 2, 2, 3, 1),
    Sketcher.Constraint("Coincident", 3, 2, 0, 1),
    Sketcher.Constraint("Vertical", 0),
    Sketcher.Constraint("Horizontal", 1),
    Sketcher.Constraint("Vertical", 2),
    Sketcher.Constraint("Horizontal", 3),
    Sketcher.Constraint("PointOnObject", 0, 2, -1),
    Sketcher.Constraint("DistanceX", 1, 1, 1, 2, Q("20 mm")),
    Sketcher.Constraint("DistanceY", 0, 2, 0, 1, Q("480 mm")),
    Sketcher.Constraint("DistanceX", -1, 1, 0, 2, Q("68 mm")),
])
pocket12 = body.newObject("PartDesign::Pocket", "Pocket011")
pocket12.Profile = sketch18
pocket12.Length = 900

sketch19 = body.newObject("Sketcher::SketchObject", "Sketch018")
sketch19.AttachmentSupport = (doc.getObject("XY_Plane"), [""])
sketch19.MapMode = "FlatFace"
sketch19.AttachmentOffset = App.Placement(App.Vector(0, 0, 490), App.Rotation())
sketch19.addGeometry([
    Part.LineSegment(App.Vector(10, 88, 0), App.Vector(10, 68, 0)),
    Part.LineSegment(App.Vector(10, 68, 0), App.Vector(78, 68, 0)),
    Part.LineSegment(App.Vector(78, 68, 0), App.Vector(78, 88, 0)),
    Part.LineSegment(App.Vector(78, 88, 0), App.Vector(10, 88, 0)),
], False)
sketch19.addConstraint([
    Sketcher.Constraint("Coincident", 0, 2, 1, 1),
    Sketcher.Constraint("Coincident", 1, 2, 2, 1),
    Sketcher.Constraint("Coincident", 2, 2, 3, 1),
    Sketcher.Constraint("Coincident", 3, 2, 0, 1),
    Sketcher.Constraint("Vertical", 0),
    Sketcher.Constraint("Horizontal", 1),
    Sketcher.Constraint("Vertical", 2),
    Sketcher.Constraint("Horizontal", 3),
    Sketcher.Constraint("DistanceX", 1, 1, 1, 2, Q("68 mm")),
    Sketcher.Constraint("DistanceY", 0, 2, 0, 1, Q("20 mm")),
    Sketcher.Constraint("DistanceX", -1, 1, 0, 2, Q("10 mm")),
    Sketcher.Constraint("DistanceY", -1, 1, 0, 2, Q("68 mm")),
])
pocket13 = body.newObject("PartDesign::Pocket", "Pocket012")
pocket13.Profile = sketch19
pocket13.Length = 900

sketch20 = body.newObject("Sketcher::SketchObject", "Sketch019")
sketch20.AttachmentSupport = (doc.getObject("YZ_Plane"), [""])
sketch20.MapMode = "FlatFace"
sketch20.addGeometry([
    Part.LineSegment(App.Vector(98, 490, 0), App.Vector(98, -10, 0)),
    Part.LineSegment(App.Vector(98, -10, 0), App.Vector(0, -10, 0)),
    Part.LineSegment(App.Vector(0, -10, 0), App.Vector(0, 490, 0)),
    Part.LineSegment(App.Vector(0, 490, 0), App.Vector(98, 490, 0)),
    Part.LineSegment(App.Vector(10, 0, 0), App.Vector(88, 0, 0)),
    Part.LineSegment(App.Vector(88, 0, 0), App.Vector(88, 480, 0)),
    Part.LineSegment(App.Vector(88, 480, 0), App.Vector(10, 480, 0)),
    Part.LineSegment(App.Vector(10, 480, 0), App.Vector(10, 0, 0)),
], False)
sketch20.addConstraint([
    Sketcher.Constraint("Coincident", 0, 2, 1, 1),
    Sketcher.Constraint("Coincident", 1, 2, 2, 1),
    Sketcher.Constraint("Coincident", 2, 2, 3, 1),
    Sketcher.Constraint("Coincident", 3, 2, 0, 1),
    Sketcher.Constraint("Coincident", 4, 2, 5, 1),
    Sketcher.Constraint("Coincident", 5, 2, 6, 1),
    Sketcher.Constraint("Coincident", 6, 2, 7, 1),
    Sketcher.Constraint("Coincident", 7, 2, 4, 1),
    Sketcher.Constraint("Vertical", 0),
    Sketcher.Constraint("Horizontal", 1),
    Sketcher.Constraint("Vertical", 2),
    Sketcher.Constraint("Horizontal", 3),
    Sketcher.Constraint("Horizontal", 4),
    Sketcher.Constraint("Vertical", 5),
    Sketcher.Constraint("Horizontal", 6),
    Sketcher.Constraint("Vertical", 7),
    Sketcher.Constraint("PointOnObject", 1, 2, -2),
    Sketcher.Constraint("PointOnObject", 4, 2, -1),
    Sketcher.Constraint("DistanceX", 1, 2, 1, 1, Q("98 mm")),
    Sketcher.Constraint("DistanceX", 4, 1, 4, 2, Q("78 mm")),
    Sketcher.Constraint("DistanceY", 0, 2, 0, 1, Q("500 mm")),
    Sketcher.Constraint("DistanceY", 5, 1, 5, 2, Q("480 mm")),
    Sketcher.Constraint("DistanceY", 0, 2, -1, 1, Q("10 mm")),
    Sketcher.Constraint("DistanceX", -1, 1, 4, 2, Q("88 mm")),
])
pad7 = body.newObject("PartDesign::Pad", "Pad006")
pad7.Profile = sketch20
pad7.Length = 10
pad7.Reversed = True

sketch21 = body.newObject("Sketcher::SketchObject", "Sketch020")
sketch21.AttachmentSupport = (doc.getObject("XY_Plane"), [""])
sketch21.MapMode = "FlatFace"
sketch21.AttachmentOffset = App.Placement(App.Vector(0, 0, 490), App.Rotation())
sketch21.addGeometry([
    Part.LineSegment(App.Vector(0, 10, 0), App.Vector(10, 10, 0)),
    Part.LineSegment(App.Vector(10, 10, 0), App.Vector(10, 88, 0)),
    Part.LineSegment(App.Vector(10, 88, 0), App.Vector(0, 88, 0)),
    Part.LineSegment(App.Vector(0, 88, 0), App.Vector(0, 10, 0)),
], False)
sketch21.addConstraint([
    Sketcher.Constraint("Coincident", 0, 2, 1, 1),
    Sketcher.Constraint("Coincident", 1, 2, 2, 1),
    Sketcher.Constraint("Coincident", 2, 2, 3, 1),
    Sketcher.Constraint("Coincident", 3, 2, 0, 1),
    Sketcher.Constraint("Horizontal", 0),
    Sketcher.Constraint("Vertical", 1),
    Sketcher.Constraint("Horizontal", 2),
    Sketcher.Constraint("Vertical", 3),
    Sketcher.Constraint("PointOnObject", 2, 2, -2),
    Sketcher.Constraint("DistanceX", 0, 1, 0, 2, Q("10 mm")),
    Sketcher.Constraint("DistanceY", 1, 1, 1, 2, Q("78 mm")),
    Sketcher.Constraint("DistanceY", -1, 1, 0, 2, Q("10 mm")),
])
pocket14 = body.newObject("PartDesign::Pocket", "Pocket013")
pocket14.Profile = sketch21
pocket14.Length = 900

sketch22 = body.newObject("Sketcher::SketchObject", "Sketch021")
sketch22.AttachmentSupport = (doc.getObject("XZ_Plane"), [""])
sketch22.MapMode = "FlatFace"
sketch22.AttachmentOffset = App.Placement(App.Vector(0, 0, -98), App.Rotation())
sketch22.addGeometry([
    Part.LineSegment(App.Vector(10, 480, 0), App.Vector(10, 0, 0)),
    Part.LineSegment(App.Vector(10, 0, 0), App.Vector(0, 0, 0)),
    Part.LineSegment(App.Vector(0, 0, 0), App.Vector(0, 480, 0)),
    Part.LineSegment(App.Vector(0, 480, 0), App.Vector(10, 480, 0)),
], False)
sketch22.addConstraint([
    Sketcher.Constraint("Coincident", 0, 2, 1, 1),
    Sketcher.Constraint("Coincident", 1, 2, 2, 1),
    Sketcher.Constraint("Coincident", 2, 2, 3, 1),
    Sketcher.Constraint("Coincident", 3, 2, 0, 1),
    Sketcher.Constraint("Vertical", 0),
    Sketcher.Constraint("Horizontal", 1),
    Sketcher.Constraint("Vertical", 2),
    Sketcher.Constraint("Horizontal", 3),
    Sketcher.Constraint("Coincident", 1, 2, -1, 1),
    Sketcher.Constraint("DistanceX", 1, 2, 1, 1, Q("10 mm")),
    Sketcher.Constraint("DistanceY", 0, 2, 0, 1, Q("480 mm")),
])
pocket15 = body.newObject("PartDesign::Pocket", "Pocket014")
pocket15.Profile = sketch22
pocket15.Length = 900
pocket15.Reversed = True

sketch23 = body.newObject("Sketcher::SketchObject", "Sketch022")
sketch23.AttachmentSupport = (doc.getObject("YZ_Plane"), [""])
sketch23.MapMode = "FlatFace"
sketch23.AttachmentOffset = App.Placement(App.Vector(0, 0, -10), App.Rotation())
sketch23.addGeometry([
    Part.LineSegment(App.Vector(0, -10, 0), App.Vector(0, 0, 0)),
    Part.LineSegment(App.Vector(0, 0, 0), App.Vector(10, 0, 0)),
    Part.LineSegment(App.Vector(10, 0, 0), App.Vector(10, -10, 0)),
    Part.LineSegment(App.Vector(10, -10, 0), App.Vector(0, -10, 0)),
], False)
sketch23.addConstraint([
    Sketcher.Constraint("Coincident", 0, 2, 1, 1),
    Sketcher.Constraint("Coincident", 1, 2, 2, 1),
    Sketcher.Constraint("Coincident", 2, 2, 3, 1),
    Sketcher.Constraint("Coincident", 3, 2, 0, 1),
    Sketcher.Constraint("Vertical", 0),
    Sketcher.Constraint("Horizontal", 1),
    Sketcher.Constraint("Vertical", 2),
    Sketcher.Constraint("Horizontal", 3),
    Sketcher.Constraint("Coincident", 0, 2, -1, 1),
    Sketcher.Constraint("Equal", 3, 0),
    Sketcher.Constraint("DistanceX", 1, 1, 1, 2, Q("10 mm")),
])
pad8 = body.newObject("PartDesign::Pad", "Pad007")
pad8.Profile = sketch23
pad8.Length = 64.455
pad8.Reversed = True

doc.recompute()
